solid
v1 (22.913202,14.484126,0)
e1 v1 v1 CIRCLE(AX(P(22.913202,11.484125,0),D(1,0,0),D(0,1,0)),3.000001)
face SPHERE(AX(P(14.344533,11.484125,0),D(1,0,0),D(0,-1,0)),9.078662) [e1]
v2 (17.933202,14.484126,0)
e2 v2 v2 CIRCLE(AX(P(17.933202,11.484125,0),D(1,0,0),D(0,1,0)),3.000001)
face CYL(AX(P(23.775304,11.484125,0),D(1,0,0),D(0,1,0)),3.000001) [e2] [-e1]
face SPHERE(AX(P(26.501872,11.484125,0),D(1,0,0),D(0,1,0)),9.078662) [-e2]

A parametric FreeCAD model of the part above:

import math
import FreeCAD as App
import Part
import Sketcher
from FreeCAD import Vector

doc = App.newDocument("Part")
body = doc.addObject("PartDesign::Body", "Body")

sketch1 = doc.addObject("Sketcher::SketchObject", "Sketch")
body.addObject(sketch1)
sketch1.AttachmentSupport = (doc.XY_Plane, [""])
sketch1.MapMode = "FlatFace"
sketch1.addGeometry([
    Part.LineSegment(Vector(23.423195, 11.484125, 0), Vector(17.42321, 11.484125, 0)),
    Part.ArcOfCircle(Part.Circle(Vector(26.501872, 11.484125, 0), Vector(0, 0, 1), 9.078662), math.radians(-180), math.radians(-160.704196)),
    Part.LineSegment(Vector(17.933202, 8.484124, 0), Vector(22.913202, 8.484124, 0)),
    Part.ArcOfCircle(Part.Circle(Vector(14.344533, 11.484125, 0), Vector(0, 0, 1), 9.078662), math.radians(-19.295804), math.radians(0)),
], False)
sketch1.addGeometry(Part.LineSegment(Vector(26.501872, 11.484125, 0), Vector(14.344533, 11.484125, 0)), True)
sketch1.addConstraint([
    Sketcher.Constraint("Coincident", 0, 2, 1, 1),
    Sketcher.Constraint("Coincident", 1, 2, 2, 1),
    Sketcher.Constraint("Coincident", 2, 2, 3, 1),
    Sketcher.Constraint("Coincident", 3, 2, 0, 1),
    Sketcher.Constraint("Horizontal", 0),
    Sketcher.Constraint("Horizontal", 2),
    Sketcher.Constraint("Horizontal", 4),
    Sketcher.Constraint("Coincident", 4, 1, 1, 3),
    Sketcher.Constraint("Coincident", 4, 2, 3, 3),
    Sketcher.Constraint("Equal", 1, 3),
    Sketcher.Constraint("Horizontal", 3, 3, 0, 2),
    Sketcher.Constraint("DistanceY", 1, 2, 0, 2, 3.000001),
    Sketcher.Constraint("DistanceX", 2, 1, 2, 2, 4.98),
    Sketcher.Constraint("Radius", 1, 9.078662),
    Sketcher.Constraint("DistanceX", -1, 1, 0, 2, 17.42321),
    Sketcher.Constraint("DistanceY", -1, 1, 1, 3, 11.484125),
])
revolution = doc.addObject("PartDesign::Revolution", "Revolution")
body.addObject(revolution)
revolution.Profile = sketch1
revolution.ReferenceAxis = (sketch1, ["Axis0"])
revolution.Angle = 360

doc.recompute()
